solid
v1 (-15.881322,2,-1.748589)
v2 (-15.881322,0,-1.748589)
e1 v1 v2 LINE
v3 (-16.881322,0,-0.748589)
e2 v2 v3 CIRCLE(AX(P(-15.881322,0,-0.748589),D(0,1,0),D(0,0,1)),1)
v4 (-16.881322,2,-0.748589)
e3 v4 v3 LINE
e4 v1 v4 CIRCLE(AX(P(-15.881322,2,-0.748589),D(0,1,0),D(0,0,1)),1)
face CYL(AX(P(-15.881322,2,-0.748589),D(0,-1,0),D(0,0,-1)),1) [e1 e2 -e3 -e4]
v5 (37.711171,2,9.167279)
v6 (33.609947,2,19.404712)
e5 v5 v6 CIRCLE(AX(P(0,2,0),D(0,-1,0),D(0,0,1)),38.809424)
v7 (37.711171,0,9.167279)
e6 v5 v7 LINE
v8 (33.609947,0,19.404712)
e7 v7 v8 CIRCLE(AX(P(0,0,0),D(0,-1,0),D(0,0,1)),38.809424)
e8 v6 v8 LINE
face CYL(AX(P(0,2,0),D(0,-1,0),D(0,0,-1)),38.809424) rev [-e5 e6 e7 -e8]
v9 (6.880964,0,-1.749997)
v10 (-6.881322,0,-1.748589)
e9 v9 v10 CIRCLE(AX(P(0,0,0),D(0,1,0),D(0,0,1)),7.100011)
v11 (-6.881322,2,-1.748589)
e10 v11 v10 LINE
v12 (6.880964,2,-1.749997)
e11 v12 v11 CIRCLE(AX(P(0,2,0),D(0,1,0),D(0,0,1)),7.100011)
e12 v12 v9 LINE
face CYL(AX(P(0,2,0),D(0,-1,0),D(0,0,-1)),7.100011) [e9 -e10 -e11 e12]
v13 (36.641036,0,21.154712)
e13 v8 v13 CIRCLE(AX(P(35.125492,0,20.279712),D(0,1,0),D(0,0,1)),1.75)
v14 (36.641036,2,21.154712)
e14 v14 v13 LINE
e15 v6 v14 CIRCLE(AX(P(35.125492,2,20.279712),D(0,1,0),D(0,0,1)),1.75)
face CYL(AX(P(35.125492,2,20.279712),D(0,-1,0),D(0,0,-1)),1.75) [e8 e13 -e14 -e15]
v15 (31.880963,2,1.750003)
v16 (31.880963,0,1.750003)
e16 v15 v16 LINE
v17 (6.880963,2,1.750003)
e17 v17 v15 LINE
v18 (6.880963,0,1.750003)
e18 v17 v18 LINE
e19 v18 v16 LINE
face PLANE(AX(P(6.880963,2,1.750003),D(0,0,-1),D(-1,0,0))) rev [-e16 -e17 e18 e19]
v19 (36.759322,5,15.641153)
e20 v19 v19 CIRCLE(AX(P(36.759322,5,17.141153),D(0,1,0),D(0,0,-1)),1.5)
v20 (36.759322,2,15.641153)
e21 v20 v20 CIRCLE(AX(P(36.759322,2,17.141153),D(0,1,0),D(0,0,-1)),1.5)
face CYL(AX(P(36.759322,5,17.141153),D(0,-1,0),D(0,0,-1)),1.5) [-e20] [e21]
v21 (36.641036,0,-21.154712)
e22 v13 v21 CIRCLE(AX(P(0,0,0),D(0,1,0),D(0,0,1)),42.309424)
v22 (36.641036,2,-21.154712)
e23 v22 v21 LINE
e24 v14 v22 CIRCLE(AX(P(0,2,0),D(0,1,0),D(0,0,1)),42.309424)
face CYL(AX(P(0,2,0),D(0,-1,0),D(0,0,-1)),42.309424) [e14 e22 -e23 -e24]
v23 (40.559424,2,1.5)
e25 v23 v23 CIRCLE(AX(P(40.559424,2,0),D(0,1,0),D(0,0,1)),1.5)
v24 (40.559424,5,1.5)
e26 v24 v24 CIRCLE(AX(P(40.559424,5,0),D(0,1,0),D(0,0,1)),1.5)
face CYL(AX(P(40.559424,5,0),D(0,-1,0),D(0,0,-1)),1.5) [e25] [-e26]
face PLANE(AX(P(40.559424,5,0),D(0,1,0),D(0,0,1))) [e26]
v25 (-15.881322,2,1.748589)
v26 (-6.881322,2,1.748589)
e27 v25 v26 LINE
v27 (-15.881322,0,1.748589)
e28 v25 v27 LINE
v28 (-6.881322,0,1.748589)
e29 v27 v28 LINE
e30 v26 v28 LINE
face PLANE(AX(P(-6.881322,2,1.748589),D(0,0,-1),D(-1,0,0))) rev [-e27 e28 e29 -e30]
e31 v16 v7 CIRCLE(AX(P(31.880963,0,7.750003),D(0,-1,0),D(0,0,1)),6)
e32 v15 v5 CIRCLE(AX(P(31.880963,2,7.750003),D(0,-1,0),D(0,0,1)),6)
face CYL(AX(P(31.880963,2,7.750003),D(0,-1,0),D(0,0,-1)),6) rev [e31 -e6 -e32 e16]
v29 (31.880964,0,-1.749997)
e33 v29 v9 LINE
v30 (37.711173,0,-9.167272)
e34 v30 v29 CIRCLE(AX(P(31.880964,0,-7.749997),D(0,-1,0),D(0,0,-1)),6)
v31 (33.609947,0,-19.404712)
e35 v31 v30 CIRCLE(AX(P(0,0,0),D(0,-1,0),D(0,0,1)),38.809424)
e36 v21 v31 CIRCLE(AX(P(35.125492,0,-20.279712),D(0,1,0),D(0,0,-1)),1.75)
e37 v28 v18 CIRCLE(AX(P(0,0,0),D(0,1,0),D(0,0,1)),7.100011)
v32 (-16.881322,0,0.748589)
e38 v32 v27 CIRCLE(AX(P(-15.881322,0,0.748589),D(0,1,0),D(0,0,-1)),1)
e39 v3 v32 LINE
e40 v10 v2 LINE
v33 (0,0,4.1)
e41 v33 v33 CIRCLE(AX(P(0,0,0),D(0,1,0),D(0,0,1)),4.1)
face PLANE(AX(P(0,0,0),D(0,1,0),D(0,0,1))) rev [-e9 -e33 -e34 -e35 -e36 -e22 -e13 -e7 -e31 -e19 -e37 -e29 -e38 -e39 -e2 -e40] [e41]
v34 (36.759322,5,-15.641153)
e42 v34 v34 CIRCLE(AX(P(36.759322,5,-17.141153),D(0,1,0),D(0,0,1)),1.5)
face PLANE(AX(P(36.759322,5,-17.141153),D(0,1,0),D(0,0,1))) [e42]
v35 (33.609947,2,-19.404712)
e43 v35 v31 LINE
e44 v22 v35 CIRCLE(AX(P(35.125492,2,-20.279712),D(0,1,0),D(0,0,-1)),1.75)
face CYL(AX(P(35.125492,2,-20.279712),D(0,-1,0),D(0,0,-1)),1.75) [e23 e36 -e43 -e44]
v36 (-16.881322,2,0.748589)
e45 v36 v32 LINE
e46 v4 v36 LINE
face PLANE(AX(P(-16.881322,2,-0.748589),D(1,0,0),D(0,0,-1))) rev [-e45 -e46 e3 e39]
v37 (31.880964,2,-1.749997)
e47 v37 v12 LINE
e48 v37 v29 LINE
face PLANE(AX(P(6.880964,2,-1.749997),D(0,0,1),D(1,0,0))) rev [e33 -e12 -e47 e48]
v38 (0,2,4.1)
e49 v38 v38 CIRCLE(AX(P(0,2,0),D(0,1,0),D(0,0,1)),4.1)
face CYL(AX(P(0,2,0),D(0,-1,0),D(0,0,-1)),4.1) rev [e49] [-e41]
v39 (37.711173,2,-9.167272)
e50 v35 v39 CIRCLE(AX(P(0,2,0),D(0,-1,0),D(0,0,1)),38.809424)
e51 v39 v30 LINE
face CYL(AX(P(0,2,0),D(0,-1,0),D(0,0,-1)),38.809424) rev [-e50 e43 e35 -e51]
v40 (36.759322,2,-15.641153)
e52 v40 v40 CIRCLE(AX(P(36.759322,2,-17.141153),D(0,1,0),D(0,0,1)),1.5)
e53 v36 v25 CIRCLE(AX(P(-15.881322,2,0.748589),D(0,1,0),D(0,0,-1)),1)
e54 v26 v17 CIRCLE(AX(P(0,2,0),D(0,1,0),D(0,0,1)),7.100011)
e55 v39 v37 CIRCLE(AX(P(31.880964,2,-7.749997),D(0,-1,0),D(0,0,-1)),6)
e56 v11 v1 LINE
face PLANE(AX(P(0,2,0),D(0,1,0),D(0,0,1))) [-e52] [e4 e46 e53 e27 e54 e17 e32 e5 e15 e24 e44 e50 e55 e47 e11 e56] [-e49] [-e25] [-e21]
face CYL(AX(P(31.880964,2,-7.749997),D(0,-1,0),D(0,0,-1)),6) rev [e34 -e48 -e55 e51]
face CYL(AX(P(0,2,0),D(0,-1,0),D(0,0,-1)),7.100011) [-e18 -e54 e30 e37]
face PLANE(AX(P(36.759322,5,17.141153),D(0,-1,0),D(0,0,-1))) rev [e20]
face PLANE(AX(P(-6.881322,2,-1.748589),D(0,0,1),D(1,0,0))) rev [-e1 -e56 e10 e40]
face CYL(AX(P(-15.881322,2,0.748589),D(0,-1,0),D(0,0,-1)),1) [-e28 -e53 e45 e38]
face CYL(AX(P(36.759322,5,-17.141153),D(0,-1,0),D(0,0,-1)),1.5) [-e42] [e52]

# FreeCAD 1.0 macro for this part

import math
import FreeCAD as App
import Part
import Sketcher

V = App.Vector

doc = App.newDocument("Part")
params = doc.addObject("Spreadsheet::Sheet", "Params")
for row, (alias, value) in enumerate([
    ("sketch1_radius", "1 mm"),
    ("sketch1_radius2", "6 mm"),
    ("sketch1_diameter", "8.2 mm"),
    ("sketch1_width", "25 mm"),
    ("sketch1_width2", "9 mm"),
    ("pad1_length", "2 mm"),
    ("sketch2_diameter", "3 mm"),
    ("pad2_length", "3 mm"),
], start=1):
    params.set(f"A{row}", alias)
    params.set(f"B{row}", "=" + value)
    params.setAlias(f"B{row}", alias)

body = doc.addObject("PartDesign::Body", "Body")

sketch1 = body.newObject("Sketcher::SketchObject", "Sketch")
sketch1.AttachmentSupport = (doc.getObject("XZ_Plane"), [""])
sketch1.MapMode = "FlatFace"
sketch1.addGeometry(Part.LineSegment(V(31.880964, -1.749997, 0), V(6.880964, -1.749997, 0)), False)
sketch1.addGeometry(Part.ArcOfCircle(Part.Circle(V(0, 0, 0), V(0, 0, 1), 7.100011), math.radians(-165.742528), math.radians(-14.269201)), False)
sketch1.addGeometry(Part.LineSegment(V(-6.881322, -1.748589, 0), V(-15.881322, -1.748589, 0)), False)
sketch1.addGeometry(Part.ArcOfCircle(Part.Circle(V(-15.881322, -0.748589, 0), V(0, 0, 1), 1), math.radians(-180), math.radians(-90)), False)
sketch1.addGeometry(Part.LineSegment(V(-16.881322, -0.748589, 0), V(-16.881322, 0.748589, 0)), False)
sketch1.addGeometry(Part.ArcOfCircle(Part.Circle(V(-15.881322, 0.748589, 0), V(0, 0, 1), 1), math.radians(90), math.radians(180)), False)
sketch1.addGeometry(Part.LineSegment(V(-15.881322, 1.748589, 0), V(-6.881322, 1.748589, 0)), False)
sketch1.addGeometry(Part.ArcOfCircle(Part.Circle(V(0, 0, 0), V(0, 0, 1), 7.100011), math.radians(14.269247), math.radians(165.742528)), False)
sketch1.addGeometry(Part.LineSegment(V(6.880963, 1.750003, 0), V(31.880963, 1.750003, 0)), False)
sketch1.addGeometry(Part.ArcOfCircle(Part.Circle(V(31.880963, 7.750003, 0), V(0, 0, 1), 6), math.radians(-90), math.radians(13.663118)), False)
sketch1.addGeometry(Part.ArcOfCircle(Part.Circle(V(0, 0, 0), V(0, 0, 1), 38.809424), math.radians(13.663118), math.radians(30)), False)
sketch1.addGeometry(Part.ArcOfCircle(Part.Circle(V(35.125492, 20.279712, 0), V(0, 0, 1), 1.75), math.radians(30), math.radians(210)), False)
sketch1.addGeometry(Part.ArcOfCircle(Part.Circle(V(0, 0, 0), V(0, 0, 1), 42.309424), math.radians(-30), math.radians(30)), False)
sketch1.addGeometry(Part.ArcOfCircle(Part.Circle(V(35.125492, -20.279712, 0), V(0, 0, 1), 1.75), math.radians(150), math.radians(330)), False)
sketch1.addGeometry(Part.ArcOfCircle(Part.Circle(V(0, 0, 0), V(0, 0, 1), 38.809424), math.radians(-30), math.radians(-13.663108)), False)
sketch1.addGeometry(Part.ArcOfCircle(Part.Circle(V(31.880964, -7.749997, 0), V(0, 0, 1), 6), math.radians(-13.663108), math.radians(90)), False)
sketch1.addGeometry(Part.Circle(V(0, 0, 0), V(0, 0, 1), 4.1), False)
sketch1.addConstraint(Sketcher.Constraint("Coincident", 0, 2, 1, 2))
sketch1.addConstraint(Sketcher.Constraint("Coincident", 1, 1, 2, 1))
sketch1.addConstraint(Sketcher.Constraint("Tangent", 2, 2, 3, 2))
sketch1.addConstraint(Sketcher.Constraint("Tangent", 3, 1, 4, 1))
sketch1.addConstraint(Sketcher.Constraint("Tangent", 4, 2, 5, 2))
sketch1.addConstraint(Sketcher.Constraint("Tangent", 5, 1, 6, 1))
sketch1.addConstraint(Sketcher.Constraint("Coincident", 6, 2, 7, 2))
sketch1.addConstraint(Sketcher.Constraint("Coincident", 7, 1, 8, 1))
sketch1.addConstraint(Sketcher.Constraint("Tangent", 8, 2, 9, 1))
sketch1.addConstraint(Sketcher.Constraint("Tangent", 9, 2, 10, 1))
sketch1.addConstraint(Sketcher.Constraint("Tangent", 10, 2, 11, 2))
sketch1.addConstraint(Sketcher.Constraint("Tangent", 11, 1, 12, 2))
sketch1.addConstraint(Sketcher.Constraint("Tangent", 12, 1, 13, 2))
sketch1.addConstraint(Sketcher.Constraint("Tangent", 13, 1, 14, 1))
sketch1.addConstraint(Sketcher.Constraint("Tangent", 14, 2, 15, 1))
sketch1.addConstraint(Sketcher.Constraint("Tangent", 15, 2, 0, 1))
sketch1.addConstraint(Sketcher.Constraint("Horizontal", 0))
sketch1.addConstraint(Sketcher.Constraint("Horizontal", 2))
sketch1.addConstraint(Sketcher.Constraint("Vertical", 4))
sketch1.addConstraint(Sketcher.Constraint("Horizontal", 6))
sketch1.addConstraint(Sketcher.Constraint("Horizontal", 8))
sketch1.addConstraint(Sketcher.Constraint("Coincident", 1, 3, -1, 1))
sketch1.addConstraint(Sketcher.Constraint("Coincident", 7, 3, -1, 1))
sketch1.addConstraint(Sketcher.Constraint("Coincident", 10, 3, -1, 1))
sketch1.addConstraint(Sketcher.Constraint("Coincident", 12, 3, -1, 1))
sketch1.addConstraint(Sketcher.Constraint("Coincident", 14, 3, -1, 1))
sketch1.addConstraint(Sketcher.Constraint("Coincident", 16, 3, -1, 1))
sketch1.addConstraint(Sketcher.Constraint("Equal", 3, 5))
sketch1.addConstraint(Sketcher.Constraint("Equal", 1, 7))
sketch1.addConstraint(Sketcher.Constraint("Equal", 11, 13))
sketch1.addConstraint(Sketcher.Constraint("Equal", 9, 15))
sketch1.addConstraint(Sketcher.Constraint("Vertical", 11, 3, 13, 3))
sketch1.addConstraint(Sketcher.Constraint("Vertical", 9, 3, 15, 3))
sketch1.addConstraint(Sketcher.Constraint("Vertical", 1, 1, 6, 2))
sketch1.addConstraint(Sketcher.Constraint("Radius", 3, 1.0))
sketch1.addConstraint(Sketcher.Constraint("Radius", 9, 6.0))
sketch1.addConstraint(Sketcher.Constraint("Diameter", 16, 8.2))
sketch1.addConstraint(Sketcher.Constraint("DistanceX", 0, 2, 0, 1, 25.0))
sketch1.addConstraint(Sketcher.Constraint("DistanceX", 2, 2, 2, 1, 9.0))
sketch1.addConstraint(Sketcher.Constraint("Radius", 11, 1.75))
sketch1.addConstraint(Sketcher.Constraint("DistanceY", 15, 3, 9, 3, 15.5))
sketch1.addConstraint(Sketcher.Constraint("Radius", 1, 7.100011))
sketch1.addConstraint(Sketcher.Constraint("DistanceY", 11, 3, 11, 1, 0.875))
sketch1.addConstraint(Sketcher.Constraint("DistanceY", 4, 1, 4, 2, 1.497177))
sketch1.setExpression("Constraints[34]", "Params.sketch1_radius")
sketch1.setExpression("Constraints[35]", "Params.sketch1_radius2")
sketch1.setExpression("Constraints[36]", "Params.sketch1_diameter")
sketch1.setExpression("Constraints[37]", "Params.sketch1_width")
sketch1.setExpression("Constraints[38]", "Params.sketch1_width2")
pad1 = body.newObject("PartDesign::Pad", "Pad")
pad1.Profile = sketch1
pad1.setExpression("Length", "Params.pad1_length")
pad1.Reversed = True

sketch2 = body.newObject("Sketcher::SketchObject", "Sketch001")
sketch2.AttachmentSupport = (doc.getObject("XZ_Plane"), [""])
sketch2.MapMode = "FlatFace"
sketch2.AttachmentOffset = App.Placement(V(0, 0, -2), App.Rotation())
sketch2.addGeometry(Part.Circle(V(36.759322, -17.141153, 0), V(0, 0, 1), 1.5), False)
sketch2.addGeometry(Part.Circle(V(40.559424, 0, 0), V(0, 0, 1), 1.5), False)
sketch2.addGeometry(Part.Circle(V(36.759322, 17.141153, 0), V(0, 0, 1), 1.5), False)
sketch2.addConstraint(Sketcher.Constraint("Equal", 0, 1))
sketch2.addConstraint(Sketcher.Constraint("Equal", 1, 2))
sketch2.addConstraint(Sketcher.Constraint("Symmetric", 0, 3, 2, 3, -1))
sketch2.addConstraint(Sketcher.Constraint("PointOnObject", 1, 3, -1))
sketch2.addConstraint(Sketcher.Constraint("Diameter", 0, 3.0))
sketch2.addConstraint(Sketcher.Constraint("DistanceX", -1, 1, 0, 3, 36.759322))
sketch2.addConstraint(Sketcher.Constraint("DistanceY", 0, 3, -1, 1, 17.141153))
sketch2.addConstraint(Sketcher.Constraint("DistanceX", -1, 1, 1, 3, 40.559424))
sketch2.setExpression("Constraints[4]", "Params.sketch2_diameter")
pad2 = body.newObject("PartDesign::Pad", "Pad001")
pad2.Profile = sketch2
pad2.setExpression("Length", "Params.pad2_length")
pad2.Reversed = True

doc.recompute()
